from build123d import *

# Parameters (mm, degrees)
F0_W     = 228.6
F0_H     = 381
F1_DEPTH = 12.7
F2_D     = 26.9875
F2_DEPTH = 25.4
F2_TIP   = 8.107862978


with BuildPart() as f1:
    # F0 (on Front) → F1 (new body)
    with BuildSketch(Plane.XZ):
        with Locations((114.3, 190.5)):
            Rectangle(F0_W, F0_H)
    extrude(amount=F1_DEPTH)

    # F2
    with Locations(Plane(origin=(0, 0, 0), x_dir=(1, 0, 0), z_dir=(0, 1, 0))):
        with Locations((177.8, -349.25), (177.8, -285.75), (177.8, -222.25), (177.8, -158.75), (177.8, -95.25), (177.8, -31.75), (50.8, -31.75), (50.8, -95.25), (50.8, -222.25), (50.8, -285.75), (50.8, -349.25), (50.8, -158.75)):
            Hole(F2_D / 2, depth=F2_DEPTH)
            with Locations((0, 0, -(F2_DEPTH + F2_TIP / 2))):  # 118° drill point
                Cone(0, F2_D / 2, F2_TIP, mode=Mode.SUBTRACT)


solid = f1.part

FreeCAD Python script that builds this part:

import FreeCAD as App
import Part
import Sketcher
from FreeCAD import Vector
Q = App.Units.Quantity


def add_polygon(sketch, points):
    """Adds a closed chain of lines whose ends are joined by coincident constraints."""
    first, n = sketch.GeometryCount, len(points)
    for a, b in zip(points, points[1:] + points[:1]):
        sketch.addGeometry(Part.LineSegment(App.Vector(*a, 0), App.Vector(*b, 0)), False)
    for i in range(n):
        sketch.addConstraint(Sketcher.Constraint("Coincident", first + i, 2, first + (i + 1) % n, 1))

doc = App.newDocument("Part")
body = doc.addObject("PartDesign::Body", "Body")

sketch1 = body.newObject("Sketcher::SketchObject", "Sketch")
sketch1.AttachmentSupport = (doc.getObject("XZ_Plane"), [""])
sketch1.MapMode = "FlatFace"
add_polygon(sketch1, [(0, 381), (0, 0), (228.6, 0), (228.6, 381)])
sketch1.addConstraint(Sketcher.Constraint("Vertical", 0))
sketch1.addConstraint(Sketcher.Constraint("Horizontal", 1))
sketch1.addConstraint(Sketcher.Constraint("Vertical", 2))
sketch1.addConstraint(Sketcher.Constraint("Horizontal", 3))
sketch1.addConstraint(Sketcher.Constraint("Coincident", 0, 2, -1, 1))
sketch1.addConstraint(Sketcher.Constraint("DistanceX", 1, 1, 1, 2, Q("9 in")))
sketch1.addConstraint(Sketcher.Constraint("DistanceY", 0, 2, 0, 1, Q("15 in")))
pad1 = body.newObject("PartDesign::Pad", "Pad")
pad1.Profile = sketch1
pad1.Length = Q("0.5 in")

sketch2 = body.newObject("Sketcher::SketchObject", "Sketch001")
sketch2.AttachmentSupport = (doc.getObject("XZ_Plane"), [""])
sketch2.MapMode = "FlatFace"
sketch2.addGeometry(Part.Circle(Vector(177.8, 349.25, 0), Vector(0, 0, 1), 13.49375), False)
sketch2.addGeometry(Part.Circle(Vector(177.8, 285.75, 0), Vector(0, 0, 1), 13.49375), False)
sketch2.addGeometry(Part.Circle(Vector(177.8, 222.25, 0), Vector(0, 0, 1), 13.49375), False)
sketch2.addGeometry(Part.Circle(Vector(177.8, 158.75, 0), Vector(0, 0, 1), 13.49375), False)
sketch2.addGeometry(Part.Circle(Vector(177.8, 95.25, 0), Vector(0, 0, 1), 13.49375), False)
sketch2.addGeometry(Part.Circle(Vector(177.8, 31.75, 0), Vector(0, 0, 1), 13.49375), False)
sketch2.addGeometry(Part.Circle(Vector(50.8, 31.75, 0), Vector(0, 0, 1), 13.49375), False)
sketch2.addGeometry(Part.Circle(Vector(50.8, 95.25, 0), Vector(0, 0, 1), 13.49375), False)
sketch2.addGeometry(Part.Circle(Vector(50.8, 222.25, 0), Vector(0, 0, 1), 13.49375), False)
sketch2.addGeometry(Part.Circle(Vector(50.8, 285.75, 0), Vector(0, 0, 1), 13.49375), False)
sketch2.addGeometry(Part.Circle(Vector(50.8, 349.25, 0), Vector(0, 0, 1), 13.49375), False)
sketch2.addGeometry(Part.Circle(Vector(50.8, 158.75, 0), Vector(0, 0, 1), 13.49375), False)
sketch2.addConstraint(Sketcher.Constraint("Equal", 0, 1))
sketch2.addConstraint(Sketcher.Constraint("Equal", 1, 2))
sketch2.addConstraint(Sketcher.Constraint("Equal", 2, 3))
sketch2.addConstraint(Sketcher.Constraint("Equal", 3, 4))
sketch2.addConstraint(Sketcher.Constraint("Equal", 4, 5))
sketch2.addConstraint(Sketcher.Constraint("Equal", 5, 6))
sketch2.addConstraint(Sketcher.Constraint("Equal", 6, 7))
sketch2.addConstraint(Sketcher.Constraint("Equal", 7, 8))
sketch2.addConstraint(Sketcher.Constraint("Equal", 8, 9))
sketch2.addConstraint(Sketcher.Constraint("Equal", 9, 10))
sketch2.addConstraint(Sketcher.Constraint("Equal", 10, 11))
sketch2.addConstraint(Sketcher.Constraint("Horizontal", 5, 3, 6, 3))
sketch2.addConstraint(Sketcher.Constraint("Horizontal", 4, 3, 7, 3))
sketch2.addConstraint(Sketcher.Constraint("Horizontal", 2, 3, 8, 3))
sketch2.addConstraint(Sketcher.Constraint("Horizontal", 1, 3, 9, 3))
sketch2.addConstraint(Sketcher.Constraint("Horizontal", 0, 3, 10, 3))
sketch2.addConstraint(Sketcher.Constraint("Horizontal", 3, 3, 11, 3))
sketch2.addConstraint(Sketcher.Constraint("Vertical", 0, 3, 1, 3))
sketch2.addConstraint(Sketcher.Constraint("Vertical", 1, 3, 2, 3))
sketch2.addConstraint(Sketcher.Constraint("Vertical", 2, 3, 3, 3))
sketch2.addConstraint(Sketcher.Constraint("Vertical", 3, 3, 4, 3))
sketch2.addConstraint(Sketcher.Constraint("Vertical", 4, 3, 5, 3))
sketch2.addConstraint(Sketcher.Constraint("Vertical", 6, 3, 7, 3))
sketch2.addConstraint(Sketcher.Constraint("Vertical", 7, 3, 8, 3))
sketch2.addConstraint(Sketcher.Constraint("Vertical", 8, 3, 9, 3))
sketch2.addConstraint(Sketcher.Constraint("Vertical", 9, 3, 10, 3))
sketch2.addConstraint(Sketcher.Constraint("Vertical", 10, 3, 11, 3))
sketch2.addConstraint(Sketcher.Constraint("Diameter", 0, Q("1.0625 in")))
sketch2.addConstraint(Sketcher.Constraint("DistanceX", -1, 1, 0, 3, Q("7 in")))
sketch2.addConstraint(Sketcher.Constraint("DistanceX", -1, 1, 6, 3, Q("2 in")))
sketch2.addConstraint(Sketcher.Constraint("DistanceY", 2, 3, 0, 3, Q("5 in")))
sketch2.addConstraint(Sketcher.Constraint("DistanceY", 3, 3, 1, 3, Q("5 in")))
sketch2.addConstraint(Sketcher.Constraint("DistanceY", 4, 3, 2, 3, Q("5 in")))
sketch2.addConstraint(Sketcher.Constraint("DistanceY", 5, 3, 3, 3, Q("5 in")))
sketch2.addConstraint(Sketcher.Constraint("DistanceY", 1, 3, 0, 3, Q("2.5 in")))
sketch2.addConstraint(Sketcher.Constraint("DistanceY", -1, 1, 0, 3, Q("13.75 in")))
doc.recompute()
hole = body.newObject("PartDesign::Hole", "Hole")
hole.Profile = sketch2
hole.ThreadType = "None"
hole.Diameter = Q("1.0625 in")
hole.DepthType = "Dimension"
hole.Depth = Q("1 in")
hole.DrillPoint = "Angled"
hole.DrillPointAngle = 118
hole.Reversed = True

doc.recompute()
